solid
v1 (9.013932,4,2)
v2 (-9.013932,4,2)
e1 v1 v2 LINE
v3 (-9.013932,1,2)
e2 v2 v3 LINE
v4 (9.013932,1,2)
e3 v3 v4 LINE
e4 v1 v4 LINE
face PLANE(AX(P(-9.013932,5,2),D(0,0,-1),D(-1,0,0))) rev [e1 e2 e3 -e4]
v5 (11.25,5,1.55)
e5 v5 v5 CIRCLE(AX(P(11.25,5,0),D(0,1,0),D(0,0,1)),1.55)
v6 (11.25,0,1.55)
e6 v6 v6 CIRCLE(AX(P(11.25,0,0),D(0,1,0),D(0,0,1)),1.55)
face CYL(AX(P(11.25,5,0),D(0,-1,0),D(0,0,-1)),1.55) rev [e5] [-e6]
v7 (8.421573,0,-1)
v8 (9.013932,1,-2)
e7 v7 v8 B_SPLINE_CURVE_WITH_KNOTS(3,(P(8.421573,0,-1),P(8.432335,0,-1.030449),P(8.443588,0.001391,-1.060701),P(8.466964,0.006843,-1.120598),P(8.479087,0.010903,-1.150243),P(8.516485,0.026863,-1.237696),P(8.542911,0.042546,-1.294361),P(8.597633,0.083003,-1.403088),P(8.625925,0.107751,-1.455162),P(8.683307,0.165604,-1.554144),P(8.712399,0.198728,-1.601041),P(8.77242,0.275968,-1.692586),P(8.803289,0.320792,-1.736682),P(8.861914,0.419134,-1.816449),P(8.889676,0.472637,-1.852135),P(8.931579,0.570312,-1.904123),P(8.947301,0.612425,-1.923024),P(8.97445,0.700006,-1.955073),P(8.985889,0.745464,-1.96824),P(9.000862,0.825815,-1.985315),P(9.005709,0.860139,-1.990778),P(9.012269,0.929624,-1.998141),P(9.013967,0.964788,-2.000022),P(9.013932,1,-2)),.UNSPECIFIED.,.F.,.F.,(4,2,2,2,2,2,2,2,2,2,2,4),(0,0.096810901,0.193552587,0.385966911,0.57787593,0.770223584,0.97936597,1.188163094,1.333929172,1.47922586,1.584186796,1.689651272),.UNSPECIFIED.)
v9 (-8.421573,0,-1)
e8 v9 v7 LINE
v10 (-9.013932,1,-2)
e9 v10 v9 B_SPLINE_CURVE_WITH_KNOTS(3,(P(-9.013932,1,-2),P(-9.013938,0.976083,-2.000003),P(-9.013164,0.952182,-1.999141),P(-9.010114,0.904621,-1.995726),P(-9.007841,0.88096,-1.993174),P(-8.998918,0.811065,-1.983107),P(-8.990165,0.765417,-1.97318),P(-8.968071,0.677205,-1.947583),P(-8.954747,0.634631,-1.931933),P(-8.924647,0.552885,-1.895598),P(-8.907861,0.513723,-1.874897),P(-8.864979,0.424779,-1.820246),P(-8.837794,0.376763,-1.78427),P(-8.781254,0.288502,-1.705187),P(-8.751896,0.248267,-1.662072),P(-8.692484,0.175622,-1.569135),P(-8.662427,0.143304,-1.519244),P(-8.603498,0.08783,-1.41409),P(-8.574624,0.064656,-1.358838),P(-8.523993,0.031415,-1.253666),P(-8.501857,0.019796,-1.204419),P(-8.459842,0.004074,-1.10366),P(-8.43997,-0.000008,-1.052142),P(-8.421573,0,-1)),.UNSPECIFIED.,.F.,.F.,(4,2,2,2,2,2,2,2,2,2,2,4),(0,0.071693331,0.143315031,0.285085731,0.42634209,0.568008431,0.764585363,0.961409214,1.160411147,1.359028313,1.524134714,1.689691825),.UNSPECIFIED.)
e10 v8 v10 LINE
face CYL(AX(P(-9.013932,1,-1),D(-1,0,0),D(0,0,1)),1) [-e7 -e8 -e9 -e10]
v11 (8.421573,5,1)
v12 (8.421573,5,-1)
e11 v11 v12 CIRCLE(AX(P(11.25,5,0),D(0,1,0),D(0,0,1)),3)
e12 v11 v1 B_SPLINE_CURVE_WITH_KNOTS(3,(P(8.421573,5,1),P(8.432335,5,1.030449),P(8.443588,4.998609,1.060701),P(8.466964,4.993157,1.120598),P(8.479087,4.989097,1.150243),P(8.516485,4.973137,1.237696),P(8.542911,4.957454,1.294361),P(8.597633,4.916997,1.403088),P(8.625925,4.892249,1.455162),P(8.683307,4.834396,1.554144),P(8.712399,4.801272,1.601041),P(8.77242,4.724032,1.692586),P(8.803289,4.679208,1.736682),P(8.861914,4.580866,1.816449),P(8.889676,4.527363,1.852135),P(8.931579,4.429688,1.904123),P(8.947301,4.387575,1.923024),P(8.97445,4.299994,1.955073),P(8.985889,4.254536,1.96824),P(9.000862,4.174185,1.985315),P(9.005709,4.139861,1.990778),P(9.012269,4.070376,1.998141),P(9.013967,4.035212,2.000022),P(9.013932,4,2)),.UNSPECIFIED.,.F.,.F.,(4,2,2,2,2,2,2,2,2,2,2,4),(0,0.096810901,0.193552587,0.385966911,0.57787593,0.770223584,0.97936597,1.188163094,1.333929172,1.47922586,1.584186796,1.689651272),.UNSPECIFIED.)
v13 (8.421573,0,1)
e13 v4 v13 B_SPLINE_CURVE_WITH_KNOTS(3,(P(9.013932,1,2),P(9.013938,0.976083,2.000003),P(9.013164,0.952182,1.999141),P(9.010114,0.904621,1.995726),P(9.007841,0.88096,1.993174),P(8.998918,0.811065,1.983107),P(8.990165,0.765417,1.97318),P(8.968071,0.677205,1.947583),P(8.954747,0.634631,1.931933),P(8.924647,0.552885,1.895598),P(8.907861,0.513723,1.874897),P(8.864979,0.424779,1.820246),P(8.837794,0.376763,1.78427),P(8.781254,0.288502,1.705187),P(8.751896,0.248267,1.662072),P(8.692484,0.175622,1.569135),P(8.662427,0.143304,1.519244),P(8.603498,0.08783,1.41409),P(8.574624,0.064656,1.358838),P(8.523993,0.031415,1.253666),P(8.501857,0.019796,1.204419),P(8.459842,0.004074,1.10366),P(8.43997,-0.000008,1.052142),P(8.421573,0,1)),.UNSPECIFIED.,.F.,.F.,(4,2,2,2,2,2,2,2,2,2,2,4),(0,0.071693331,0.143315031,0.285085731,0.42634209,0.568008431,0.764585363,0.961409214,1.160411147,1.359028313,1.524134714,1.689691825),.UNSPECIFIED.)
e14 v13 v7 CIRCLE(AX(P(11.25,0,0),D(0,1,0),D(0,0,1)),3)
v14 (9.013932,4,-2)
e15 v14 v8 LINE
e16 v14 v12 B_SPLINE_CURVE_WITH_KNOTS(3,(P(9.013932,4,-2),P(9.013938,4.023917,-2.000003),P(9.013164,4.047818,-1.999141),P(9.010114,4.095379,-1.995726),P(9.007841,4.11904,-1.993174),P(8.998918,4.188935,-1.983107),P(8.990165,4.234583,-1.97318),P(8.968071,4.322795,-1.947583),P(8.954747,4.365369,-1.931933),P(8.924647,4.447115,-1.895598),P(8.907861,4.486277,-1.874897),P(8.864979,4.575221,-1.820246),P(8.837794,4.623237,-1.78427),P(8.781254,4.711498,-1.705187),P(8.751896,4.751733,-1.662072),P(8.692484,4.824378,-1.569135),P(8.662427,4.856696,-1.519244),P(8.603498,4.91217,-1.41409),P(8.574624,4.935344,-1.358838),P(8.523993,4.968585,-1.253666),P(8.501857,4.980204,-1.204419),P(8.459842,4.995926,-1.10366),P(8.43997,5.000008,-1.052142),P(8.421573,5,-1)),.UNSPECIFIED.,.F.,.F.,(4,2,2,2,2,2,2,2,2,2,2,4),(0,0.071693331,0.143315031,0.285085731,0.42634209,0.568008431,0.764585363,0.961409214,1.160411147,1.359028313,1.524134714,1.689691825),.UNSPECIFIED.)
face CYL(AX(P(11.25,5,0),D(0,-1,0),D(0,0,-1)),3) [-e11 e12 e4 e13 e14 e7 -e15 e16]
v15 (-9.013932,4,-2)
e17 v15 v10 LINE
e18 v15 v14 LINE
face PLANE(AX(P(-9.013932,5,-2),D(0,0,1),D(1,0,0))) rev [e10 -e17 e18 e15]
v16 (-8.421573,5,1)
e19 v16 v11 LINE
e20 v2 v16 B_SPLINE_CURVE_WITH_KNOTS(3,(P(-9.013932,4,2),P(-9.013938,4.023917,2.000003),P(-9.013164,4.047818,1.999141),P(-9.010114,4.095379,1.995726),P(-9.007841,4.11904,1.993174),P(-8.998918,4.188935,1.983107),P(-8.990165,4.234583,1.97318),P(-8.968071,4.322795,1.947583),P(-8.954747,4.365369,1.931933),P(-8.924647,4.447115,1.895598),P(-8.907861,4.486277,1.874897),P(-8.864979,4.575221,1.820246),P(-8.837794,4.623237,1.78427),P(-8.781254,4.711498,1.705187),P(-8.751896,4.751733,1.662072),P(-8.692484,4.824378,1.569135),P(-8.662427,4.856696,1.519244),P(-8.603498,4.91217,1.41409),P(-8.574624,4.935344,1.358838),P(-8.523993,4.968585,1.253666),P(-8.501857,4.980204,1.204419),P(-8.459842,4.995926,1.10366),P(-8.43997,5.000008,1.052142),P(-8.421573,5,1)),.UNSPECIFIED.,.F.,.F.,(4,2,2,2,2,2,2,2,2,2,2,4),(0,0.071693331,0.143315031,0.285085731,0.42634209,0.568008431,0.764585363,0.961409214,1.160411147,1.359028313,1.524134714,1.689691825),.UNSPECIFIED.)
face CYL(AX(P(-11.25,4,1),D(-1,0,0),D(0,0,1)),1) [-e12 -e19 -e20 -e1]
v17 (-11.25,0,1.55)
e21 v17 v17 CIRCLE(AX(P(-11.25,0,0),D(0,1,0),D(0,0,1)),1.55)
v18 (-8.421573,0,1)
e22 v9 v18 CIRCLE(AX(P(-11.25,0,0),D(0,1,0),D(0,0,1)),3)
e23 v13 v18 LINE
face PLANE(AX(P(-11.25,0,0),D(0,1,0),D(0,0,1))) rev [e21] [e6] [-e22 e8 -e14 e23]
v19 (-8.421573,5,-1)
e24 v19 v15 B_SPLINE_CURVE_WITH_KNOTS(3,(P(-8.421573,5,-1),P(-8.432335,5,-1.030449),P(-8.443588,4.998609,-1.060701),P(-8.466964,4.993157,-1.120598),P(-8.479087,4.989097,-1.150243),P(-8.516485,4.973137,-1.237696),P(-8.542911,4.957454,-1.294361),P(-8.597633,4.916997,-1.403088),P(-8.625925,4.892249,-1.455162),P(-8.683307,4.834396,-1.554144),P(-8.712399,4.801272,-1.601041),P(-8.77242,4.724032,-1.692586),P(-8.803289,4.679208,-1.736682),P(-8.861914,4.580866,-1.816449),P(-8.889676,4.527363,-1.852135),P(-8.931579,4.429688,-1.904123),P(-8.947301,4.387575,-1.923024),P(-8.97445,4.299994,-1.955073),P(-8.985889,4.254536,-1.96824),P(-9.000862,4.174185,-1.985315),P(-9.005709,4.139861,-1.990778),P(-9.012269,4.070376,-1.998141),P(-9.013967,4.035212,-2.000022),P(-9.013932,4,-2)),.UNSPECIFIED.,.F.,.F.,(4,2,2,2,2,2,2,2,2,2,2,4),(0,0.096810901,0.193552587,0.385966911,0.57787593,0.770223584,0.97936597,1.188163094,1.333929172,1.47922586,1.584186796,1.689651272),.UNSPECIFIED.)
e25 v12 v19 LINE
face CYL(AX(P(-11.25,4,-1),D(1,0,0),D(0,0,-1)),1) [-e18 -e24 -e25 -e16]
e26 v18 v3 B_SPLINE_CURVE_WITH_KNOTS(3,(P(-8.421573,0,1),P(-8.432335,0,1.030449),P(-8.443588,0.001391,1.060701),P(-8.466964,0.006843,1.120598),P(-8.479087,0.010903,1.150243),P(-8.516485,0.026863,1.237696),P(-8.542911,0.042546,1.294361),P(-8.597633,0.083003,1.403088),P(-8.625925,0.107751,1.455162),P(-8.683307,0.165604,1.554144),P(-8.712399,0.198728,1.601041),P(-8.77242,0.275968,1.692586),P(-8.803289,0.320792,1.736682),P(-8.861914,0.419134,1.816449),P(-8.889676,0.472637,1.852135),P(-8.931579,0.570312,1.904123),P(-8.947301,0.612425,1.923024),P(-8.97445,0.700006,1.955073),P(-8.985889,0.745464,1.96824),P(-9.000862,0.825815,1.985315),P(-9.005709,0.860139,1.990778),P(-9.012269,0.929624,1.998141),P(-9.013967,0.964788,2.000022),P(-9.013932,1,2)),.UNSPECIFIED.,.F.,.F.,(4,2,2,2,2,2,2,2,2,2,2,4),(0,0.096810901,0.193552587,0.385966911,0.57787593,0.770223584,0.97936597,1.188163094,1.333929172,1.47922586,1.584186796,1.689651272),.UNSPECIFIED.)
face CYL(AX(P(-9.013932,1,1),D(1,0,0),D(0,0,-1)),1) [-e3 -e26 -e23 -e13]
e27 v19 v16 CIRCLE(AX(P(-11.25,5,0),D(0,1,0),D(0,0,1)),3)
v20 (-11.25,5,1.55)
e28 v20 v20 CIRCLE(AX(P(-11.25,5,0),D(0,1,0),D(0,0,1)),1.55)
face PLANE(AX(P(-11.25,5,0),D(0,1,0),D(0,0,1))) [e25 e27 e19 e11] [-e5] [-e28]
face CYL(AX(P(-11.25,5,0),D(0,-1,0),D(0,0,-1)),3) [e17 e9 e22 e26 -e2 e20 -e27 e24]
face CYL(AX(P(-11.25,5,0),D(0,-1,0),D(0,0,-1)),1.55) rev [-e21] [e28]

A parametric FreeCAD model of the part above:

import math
import FreeCAD as App
import Part
import Sketcher
Q = App.Units.Quantity


def edges_at(feature, points):
    """Names of the edges that pass closest to the given points."""
    edges = feature.Shape.Edges
    near = lambda p: min(range(len(edges)), key=lambda i: edges[i].distToShape(Part.Vertex(*p))[0])
    return sorted({f"Edge{near(p) + 1}" for p in points})

doc = App.newDocument("Part")
body = doc.addObject("PartDesign::Body", "Body")

sketch1 = body.newObject("Sketcher::SketchObject", "Sketch")
sketch1.AttachmentSupport = (doc.getObject("XZ_Plane"), [""])
sketch1.MapMode = "FlatFace"
sketch1.addGeometry([
    Part.LineSegment(App.Vector(9, -2, 0), App.Vector(-9, -2, 0)),
    Part.ArcOfCircle(Part.Circle(App.Vector(-11.2, 0, 0), App.Vector(0, 0, 1), 3), math.radians(42), math.radians(318)),
    Part.LineSegment(App.Vector(-9, 2, 0), App.Vector(9, 2, 0)),
    Part.ArcOfCircle(Part.Circle(App.Vector(11.2, 0, 0), App.Vector(0, 0, 1), 3), math.radians(-138), math.radians(138)),
    Part.Circle(App.Vector(11.2, 0, 0), App.Vector(0, 0, 1), 1.6),
    Part.Circle(App.Vector(-11.2, 0, 0), App.Vector(0, 0, 1), 1.6),
], False)
sketch1.addConstraint([
    Sketcher.Constraint("Coincident", 0, 2, 1, 2),
    Sketcher.Constraint("Coincident", 1, 1, 2, 1),
    Sketcher.Constraint("Coincident", 2, 2, 3, 2),
    Sketcher.Constraint("Coincident", 3, 1, 0, 1),
    Sketcher.Constraint("Horizontal", 0),
    Sketcher.Constraint("Horizontal", 2),
    Sketcher.Constraint("Coincident", 4, 3, 3, 3),
    Sketcher.Constraint("Coincident", 5, 3, 1, 3),
    Sketcher.Constraint("Equal", 1, 3),
    Sketcher.Constraint("Equal", 4, 5),
    Sketcher.Constraint("Symmetric", 1, 3, 3, 3, -1, 1),
    Sketcher.Constraint("Symmetric", 0, 2, 1, 1, -1),
    Sketcher.Constraint("Radius", 1, Q("3 mm")),
    Sketcher.Constraint("Diameter", 4, Q("3.1 mm")),
    Sketcher.Constraint("DistanceY", 0, 2, -1, 1, Q("2 mm")),
    Sketcher.Constraint("DistanceX", 1, 3, 3, 3, Q("22.5 mm")),
])
pad1 = body.newObject("PartDesign::Pad", "Pad")
pad1.Profile = sketch1
pad1.Length = 5
pad1.Reversed = True
doc.recompute()

fillet = body.newObject("PartDesign::Fillet", "Fillet")
fillet.Base = (pad1, edges_at(pad1, [
    (0, 5, -2),
    (0, 0, -2),
    (0, 0, 2),
    (0, 5, 2),
]))
fillet.Radius = 1

doc.recompute()
